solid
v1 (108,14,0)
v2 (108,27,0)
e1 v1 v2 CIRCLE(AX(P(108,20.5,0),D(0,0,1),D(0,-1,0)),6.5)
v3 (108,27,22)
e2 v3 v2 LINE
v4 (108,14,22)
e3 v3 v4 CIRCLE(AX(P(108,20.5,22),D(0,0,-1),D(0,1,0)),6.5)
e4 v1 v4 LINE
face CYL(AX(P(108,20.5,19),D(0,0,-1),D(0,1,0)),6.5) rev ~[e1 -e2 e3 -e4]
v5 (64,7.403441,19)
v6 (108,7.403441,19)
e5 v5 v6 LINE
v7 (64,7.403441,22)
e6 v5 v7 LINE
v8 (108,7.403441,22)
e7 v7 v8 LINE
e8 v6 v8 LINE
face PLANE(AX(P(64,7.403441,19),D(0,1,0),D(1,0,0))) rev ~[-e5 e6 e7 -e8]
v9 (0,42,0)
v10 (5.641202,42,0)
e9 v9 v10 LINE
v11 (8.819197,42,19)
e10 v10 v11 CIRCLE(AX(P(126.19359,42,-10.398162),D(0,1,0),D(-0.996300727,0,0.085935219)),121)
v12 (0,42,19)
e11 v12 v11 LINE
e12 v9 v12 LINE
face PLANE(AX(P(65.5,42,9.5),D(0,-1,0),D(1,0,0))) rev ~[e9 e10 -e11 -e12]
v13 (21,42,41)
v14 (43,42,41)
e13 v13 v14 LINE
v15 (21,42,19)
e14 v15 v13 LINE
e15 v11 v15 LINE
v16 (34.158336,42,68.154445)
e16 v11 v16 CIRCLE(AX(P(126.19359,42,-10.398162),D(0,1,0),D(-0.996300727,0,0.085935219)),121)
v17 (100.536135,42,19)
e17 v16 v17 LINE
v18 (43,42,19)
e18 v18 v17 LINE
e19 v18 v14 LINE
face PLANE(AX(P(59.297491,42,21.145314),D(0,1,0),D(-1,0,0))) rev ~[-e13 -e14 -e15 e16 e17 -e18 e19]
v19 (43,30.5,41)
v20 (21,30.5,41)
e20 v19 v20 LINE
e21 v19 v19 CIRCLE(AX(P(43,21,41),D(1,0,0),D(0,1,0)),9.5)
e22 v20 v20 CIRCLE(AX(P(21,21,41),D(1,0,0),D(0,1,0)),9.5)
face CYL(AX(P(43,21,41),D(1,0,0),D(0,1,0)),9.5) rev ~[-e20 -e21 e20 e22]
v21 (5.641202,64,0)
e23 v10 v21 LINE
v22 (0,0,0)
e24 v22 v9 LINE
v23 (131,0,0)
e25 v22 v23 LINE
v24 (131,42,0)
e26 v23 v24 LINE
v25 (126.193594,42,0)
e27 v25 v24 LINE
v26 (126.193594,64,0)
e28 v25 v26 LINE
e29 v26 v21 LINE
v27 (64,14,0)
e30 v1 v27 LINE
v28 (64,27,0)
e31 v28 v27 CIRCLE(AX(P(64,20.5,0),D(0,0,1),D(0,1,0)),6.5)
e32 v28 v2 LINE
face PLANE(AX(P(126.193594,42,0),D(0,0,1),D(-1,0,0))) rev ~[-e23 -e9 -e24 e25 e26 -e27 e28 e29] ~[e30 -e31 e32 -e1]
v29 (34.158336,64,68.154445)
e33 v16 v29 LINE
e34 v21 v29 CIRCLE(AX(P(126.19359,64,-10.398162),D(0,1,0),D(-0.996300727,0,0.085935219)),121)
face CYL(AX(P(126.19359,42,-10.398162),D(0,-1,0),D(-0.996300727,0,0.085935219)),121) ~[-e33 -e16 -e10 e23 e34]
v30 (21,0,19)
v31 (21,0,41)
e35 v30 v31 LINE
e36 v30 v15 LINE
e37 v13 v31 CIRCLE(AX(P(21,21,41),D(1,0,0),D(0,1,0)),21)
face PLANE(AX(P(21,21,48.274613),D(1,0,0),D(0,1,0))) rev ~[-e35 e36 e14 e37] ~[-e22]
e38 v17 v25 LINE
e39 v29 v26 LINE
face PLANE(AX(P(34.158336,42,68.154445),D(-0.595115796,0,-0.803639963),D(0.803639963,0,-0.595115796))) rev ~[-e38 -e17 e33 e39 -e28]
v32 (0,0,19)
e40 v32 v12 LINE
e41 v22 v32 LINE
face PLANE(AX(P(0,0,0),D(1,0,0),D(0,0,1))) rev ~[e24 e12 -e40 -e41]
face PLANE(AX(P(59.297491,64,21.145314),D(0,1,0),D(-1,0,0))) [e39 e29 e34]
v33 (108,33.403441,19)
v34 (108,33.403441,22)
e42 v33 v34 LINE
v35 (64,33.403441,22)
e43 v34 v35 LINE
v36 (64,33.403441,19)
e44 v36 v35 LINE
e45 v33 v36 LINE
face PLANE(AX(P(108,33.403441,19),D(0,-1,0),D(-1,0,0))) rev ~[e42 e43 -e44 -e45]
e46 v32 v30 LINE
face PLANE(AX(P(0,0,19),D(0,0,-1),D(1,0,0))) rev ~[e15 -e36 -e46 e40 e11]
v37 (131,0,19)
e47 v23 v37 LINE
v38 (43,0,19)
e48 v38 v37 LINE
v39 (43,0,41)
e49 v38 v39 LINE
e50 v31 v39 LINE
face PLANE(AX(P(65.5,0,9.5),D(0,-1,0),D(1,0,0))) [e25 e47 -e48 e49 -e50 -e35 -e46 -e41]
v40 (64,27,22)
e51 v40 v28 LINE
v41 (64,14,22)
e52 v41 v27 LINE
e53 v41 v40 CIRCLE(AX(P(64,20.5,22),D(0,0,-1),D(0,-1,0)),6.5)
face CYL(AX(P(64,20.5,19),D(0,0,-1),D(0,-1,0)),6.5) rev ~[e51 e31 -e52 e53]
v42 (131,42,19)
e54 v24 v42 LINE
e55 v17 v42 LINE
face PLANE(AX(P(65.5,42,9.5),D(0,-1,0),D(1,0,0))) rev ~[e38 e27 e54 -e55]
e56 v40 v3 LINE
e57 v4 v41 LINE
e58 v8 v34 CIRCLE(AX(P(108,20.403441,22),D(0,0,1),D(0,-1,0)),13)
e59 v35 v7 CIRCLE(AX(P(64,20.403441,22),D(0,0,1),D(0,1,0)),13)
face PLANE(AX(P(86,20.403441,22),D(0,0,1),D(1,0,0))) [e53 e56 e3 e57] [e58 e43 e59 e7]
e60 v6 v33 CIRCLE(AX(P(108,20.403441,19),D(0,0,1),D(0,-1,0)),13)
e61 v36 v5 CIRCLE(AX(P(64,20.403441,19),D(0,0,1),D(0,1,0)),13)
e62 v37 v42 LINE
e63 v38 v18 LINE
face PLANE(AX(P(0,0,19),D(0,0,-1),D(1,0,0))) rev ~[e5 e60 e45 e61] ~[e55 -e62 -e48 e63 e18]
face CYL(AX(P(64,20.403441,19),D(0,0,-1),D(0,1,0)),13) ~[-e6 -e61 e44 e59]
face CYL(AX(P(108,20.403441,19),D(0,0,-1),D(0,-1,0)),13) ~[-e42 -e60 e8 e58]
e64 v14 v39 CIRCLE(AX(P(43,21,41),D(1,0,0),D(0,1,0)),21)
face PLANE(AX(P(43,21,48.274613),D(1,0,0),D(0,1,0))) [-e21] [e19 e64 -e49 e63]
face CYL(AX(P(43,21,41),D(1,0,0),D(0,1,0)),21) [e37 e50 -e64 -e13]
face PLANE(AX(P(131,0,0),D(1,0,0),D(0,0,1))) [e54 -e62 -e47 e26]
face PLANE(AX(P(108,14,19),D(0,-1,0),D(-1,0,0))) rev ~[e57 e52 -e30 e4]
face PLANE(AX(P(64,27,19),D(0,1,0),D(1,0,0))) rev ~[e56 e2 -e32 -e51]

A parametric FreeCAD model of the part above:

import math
import FreeCAD as App
import Part
import Sketcher
from FreeCAD import Vector
Q = App.Units.Quantity


def add_polygon(sketch, points):
    """Adds a closed chain of lines whose ends are joined by coincident constraints."""
    first, n = sketch.GeometryCount, len(points)
    for a, b in zip(points, points[1:] + points[:1]):
        sketch.addGeometry(Part.LineSegment(App.Vector(*a, 0), App.Vector(*b, 0)), False)
    for i in range(n):
        sketch.addConstraint(Sketcher.Constraint("Coincident", first + i, 2, first + (i + 1) % n, 1))

doc = App.newDocument("Part")
body = doc.addObject("PartDesign::Body", "Body")

# Sketch on XZ plane
sketch1 = body.newObject("Sketcher::SketchObject", "Sketch")
sketch1.AttachmentSupport = (doc.getObject("XZ_Plane"), [""])
sketch1.MapMode = "FlatFace"
add_polygon(sketch1, [(0, 19), (0, 0), (131, 0), (131, 19)])  # lines 0-3
sketch1.addConstraint([
    Sketcher.Constraint("Vertical", 0),
    Sketcher.Constraint("Horizontal", 1),
    Sketcher.Constraint("Vertical", 2),
    Sketcher.Constraint("Horizontal", 3),
    Sketcher.Constraint("Coincident", 0, 2, -1, 1),
    Sketcher.Constraint("DistanceX", 1, 1, 1, 2, Q("131 mm")),
    Sketcher.Constraint("DistanceY", 0, 2, 0, 1, Q("19 mm")),
])
pad1 = body.newObject("PartDesign::Pad", "Pad")
pad1.Profile = sketch1
pad1.Length = 42
pad1.Reversed = True

# Sketch on XZ plane
sketch2 = body.newObject("Sketcher::SketchObject", "Sketch001")
sketch2.AttachmentSupport = (doc.getObject("XZ_Plane"), [""])
sketch2.MapMode = "FlatFace"
add_polygon(sketch2, [(21, 41), (21, 19), (43, 19), (43, 41)])  # lines 0-3
sketch2.addConstraint([
    Sketcher.Constraint("Vertical", 0),
    Sketcher.Constraint("Horizontal", 1),
    Sketcher.Constraint("Vertical", 2),
    Sketcher.Constraint("Horizontal", 3),
    Sketcher.Constraint("Equal", 3, 0),
    Sketcher.Constraint("DistanceX", 1, 1, 1, 2, Q("22 mm")),
    Sketcher.Constraint("DistanceX", -1, 1, 0, 2, Q("21 mm")),
    Sketcher.Constraint("DistanceY", -1, 1, 0, 2, Q("19 mm")),
])
pad2 = body.newObject("PartDesign::Pad", "Pad001")
pad2.Profile = sketch2
pad2.Length = 42
pad2.Reversed = True

# Sketch on YZ plane
sketch3 = body.newObject("Sketcher::SketchObject", "Sketch002")
sketch3.AttachmentSupport = (doc.getObject("YZ_Plane"), [""])
sketch3.MapMode = "FlatFace"
sketch3.AttachmentOffset = App.Placement(Vector(0, 0, 43), App.Rotation())
sketch3.addGeometry([
    Part.LineSegment(Vector(0, 41, 0), Vector(42, 41, 0)),
    Part.ArcOfCircle(Part.Circle(Vector(21, 41, 0), Vector(0, 0, 1), 21), math.radians(0), math.radians(180)),
], False)
sketch3.addConstraint([
    Sketcher.Constraint("Coincident", 0, 1, 1, 2),
    Sketcher.Constraint("Coincident", 1, 1, 0, 2),
    Sketcher.Constraint("Horizontal", 0),
    Sketcher.Constraint("PointOnObject", 0, 1, -2),
    Sketcher.Constraint("Horizontal", 1, 3, 0, 1),
    Sketcher.Constraint("Radius", 1, Q("21 mm")),
    Sketcher.Constraint("DistanceY", -1, 1, 1, 3, Q("41 mm")),
])
pad3 = body.newObject("PartDesign::Pad", "Pad002")
pad3.Profile = sketch3
pad3.Length = 22
pad3.Reversed = True

# Sketch on YZ plane
sketch4 = body.newObject("Sketcher::SketchObject", "Sketch003")
sketch4.AttachmentSupport = (doc.getObject("YZ_Plane"), [""])
sketch4.MapMode = "FlatFace"
sketch4.AttachmentOffset = App.Placement(Vector(0, 0, 43), App.Rotation())
sketch4.addGeometry(Part.Circle(Vector(21, 41, 0), Vector(0, 0, 1), 10), False)
sketch4.addConstraint([
    Sketcher.Constraint("Diameter", 0, Q("19 mm")),
    Sketcher.Constraint("DistanceX", -1, 1, 0, 3, Q("21 mm")),
    Sketcher.Constraint("DistanceY", -1, 1, 0, 3, Q("41 mm")),
])
pocket1 = body.newObject("PartDesign::Pocket", "Pocket")
pocket1.Profile = sketch4
pocket1.Type = "ThroughAll"

# Sketch on XY plane
sketch5 = body.newObject("Sketcher::SketchObject", "Sketch004")
sketch5.AttachmentSupport = (doc.getObject("XY_Plane"), [""])
sketch5.MapMode = "FlatFace"
sketch5.AttachmentOffset = App.Placement(Vector(0, 0, 19), App.Rotation())
sketch5.addGeometry([
    Part.ArcOfCircle(Part.Circle(Vector(64, 20, 0), Vector(0, 0, 1), 6), math.radians(90), math.radians(270)),
    Part.LineSegment(Vector(64, 14, 0), Vector(108, 14, 0)),
    Part.ArcOfCircle(Part.Circle(Vector(108, 20, 0), Vector(0, 0, 1), 6), math.radians(-90), math.radians(90)),
    Part.LineSegment(Vector(108, 27, 0), Vector(64, 27, 0)),
], False)
sketch5.addConstraint([
    Sketcher.Constraint("Tangent", 0, 2, 1, 1),
    Sketcher.Constraint("Tangent", 1, 2, 2, 1),
    Sketcher.Constraint("Tangent", 2, 2, 3, 1),
    Sketcher.Constraint("Tangent", 3, 2, 0, 1),
    Sketcher.Constraint("Horizontal", 1),
    Sketcher.Constraint("Horizontal", 3),
    Sketcher.Constraint("Radius", 0, Q("6.5 mm")),
    Sketcher.Constraint("DistanceX", 1, 1, 1, 2, Q("44 mm")),
    Sketcher.Constraint("DistanceX", -1, 1, 0, 3, Q("64 mm")),
    Sketcher.Constraint("DistanceY", -1, 1, 0, 2, Q("14 mm")),
])
pocket2 = body.newObject("PartDesign::Pocket", "Pocket001")
pocket2.Profile = sketch5
pocket2.Type = "ThroughAll"

# Sketch on XZ plane
sketch6 = body.newObject("Sketcher::SketchObject", "Sketch005")
sketch6.AttachmentSupport = (doc.getObject("XZ_Plane"), [""])
sketch6.MapMode = "FlatFace"
sketch6.AttachmentOffset = App.Placement(Vector(0, 0, -42), App.Rotation())
sketch6.addGeometry([
    Part.LineSegment(Vector(34, 68, 0), Vector(126, 0, 0)),
    Part.LineSegment(Vector(126, 0, 0), Vector(6, 0, 0)),
    Part.ArcOfCircle(Part.Circle(Vector(126, -10, 0), Vector(0, 0, 1), 121), math.radians(140), math.radians(175)),
], False)
sketch6.addConstraint([
    Sketcher.Constraint("Coincident", 0, 2, 1, 1),
    Sketcher.Constraint("Coincident", 1, 2, 2, 2),
    Sketcher.Constraint("Coincident", 2, 1, 0, 1),
    Sketcher.Constraint("Horizontal", 1),
    Sketcher.Constraint("PointOnObject", 0, 2, -1),
    Sketcher.Constraint("Radius", 2, Q("121 mm")),
    Sketcher.Constraint("Distance", 0, Q("114.522998 mm")),
    Sketcher.Constraint("DistanceX", -1, 1, 1, 2, Q("5.641202 mm")),
    Sketcher.Constraint("DistanceX", 1, 2, 1, 1, Q("120.552392 mm")),
    Sketcher.Constraint("DistanceX", -1, 1, 2, 3, Q("126.19359 mm")),
])
pad4 = body.newObject("PartDesign::Pad", "Pad003")
pad4.Profile = sketch6
pad4.Length = 22
pad4.Reversed = True

# Sketch on XY plane
sketch7 = body.newObject("Sketcher::SketchObject", "Sketch006")
sketch7.AttachmentSupport = (doc.getObject("XY_Plane"), [""])
sketch7.MapMode = "FlatFace"
sketch7.AttachmentOffset = App.Placement(Vector(0, 0, 19), App.Rotation())
sketch7.addGeometry([
    Part.LineSegment(Vector(108, 33, 0), Vector(64, 33, 0)),  # 0
    Part.ArcOfCircle(Part.Circle(Vector(64, 20, 0), Vector(0, 0, 1), 13), math.radians(90), math.radians(270)),  # 1
    Part.LineSegment(Vector(64, 7, 0), Vector(108, 7, 0)),  # 2
    Part.ArcOfCircle(Part.Circle(Vector(108, 20, 0), Vector(0, 0, 1), 13), math.radians(-90), math.radians(90)),  # 3
    Part.ArcOfCircle(Part.Circle(Vector(108, 20, 0), Vector(0, 0, 1), 6), math.radians(-90), math.radians(90)),  # 4
    Part.LineSegment(Vector(108, 14, 0), Vector(64, 14, 0)),  # 5
    Part.ArcOfCircle(Part.Circle(Vector(64, 20, 0), Vector(0, 0, 1), 6), math.radians(90), math.radians(270)),  # 6
    Part.LineSegment(Vector(64, 27, 0), Vector(108, 27, 0)),  # 7
], False)
sketch7.addConstraint([
    Sketcher.Constraint("Tangent", 0, 2, 1, 1),
    Sketcher.Constraint("Tangent", 1, 2, 2, 1),
    Sketcher.Constraint("Tangent", 2, 2, 3, 1),
    Sketcher.Constraint("Tangent", 3, 2, 0, 1),
    Sketcher.Constraint("Tangent", 4, 1, 5, 1),
    Sketcher.Constraint("Tangent", 5, 2, 6, 2),
    Sketcher.Constraint("Tangent", 6, 1, 7, 1),
    Sketcher.Constraint("Tangent", 7, 2, 4, 2),
    Sketcher.Constraint("Horizontal", 0),
    Sketcher.Constraint("Horizontal", 2),
    Sketcher.Constraint("Horizontal", 5),
    Sketcher.Constraint("Horizontal", 7),
    Sketcher.Constraint("Vertical", 3, 3, 4, 3),
    Sketcher.Constraint("Vertical", 1, 3, 6, 3),
    Sketcher.Constraint("Radius", 1, Q("13 mm")),
    Sketcher.Constraint("Radius", 4, Q("6.5 mm")),
    Sketcher.Constraint("DistanceX", 0, 2, 0, 1, Q("44 mm")),
    Sketcher.Constraint("DistanceX", -1, 1, 1, 3, Q("64 mm")),
    Sketcher.Constraint("DistanceY", -1, 1, 4, 1, Q("14 mm")),
    Sketcher.Constraint("DistanceY", -1, 1, 1, 3, Q("20.403441 mm")),
])
pad5 = body.newObject("PartDesign::Pad", "Pad004")
pad5.Profile = sketch7
pad5.Length = 3

doc.recompute()
